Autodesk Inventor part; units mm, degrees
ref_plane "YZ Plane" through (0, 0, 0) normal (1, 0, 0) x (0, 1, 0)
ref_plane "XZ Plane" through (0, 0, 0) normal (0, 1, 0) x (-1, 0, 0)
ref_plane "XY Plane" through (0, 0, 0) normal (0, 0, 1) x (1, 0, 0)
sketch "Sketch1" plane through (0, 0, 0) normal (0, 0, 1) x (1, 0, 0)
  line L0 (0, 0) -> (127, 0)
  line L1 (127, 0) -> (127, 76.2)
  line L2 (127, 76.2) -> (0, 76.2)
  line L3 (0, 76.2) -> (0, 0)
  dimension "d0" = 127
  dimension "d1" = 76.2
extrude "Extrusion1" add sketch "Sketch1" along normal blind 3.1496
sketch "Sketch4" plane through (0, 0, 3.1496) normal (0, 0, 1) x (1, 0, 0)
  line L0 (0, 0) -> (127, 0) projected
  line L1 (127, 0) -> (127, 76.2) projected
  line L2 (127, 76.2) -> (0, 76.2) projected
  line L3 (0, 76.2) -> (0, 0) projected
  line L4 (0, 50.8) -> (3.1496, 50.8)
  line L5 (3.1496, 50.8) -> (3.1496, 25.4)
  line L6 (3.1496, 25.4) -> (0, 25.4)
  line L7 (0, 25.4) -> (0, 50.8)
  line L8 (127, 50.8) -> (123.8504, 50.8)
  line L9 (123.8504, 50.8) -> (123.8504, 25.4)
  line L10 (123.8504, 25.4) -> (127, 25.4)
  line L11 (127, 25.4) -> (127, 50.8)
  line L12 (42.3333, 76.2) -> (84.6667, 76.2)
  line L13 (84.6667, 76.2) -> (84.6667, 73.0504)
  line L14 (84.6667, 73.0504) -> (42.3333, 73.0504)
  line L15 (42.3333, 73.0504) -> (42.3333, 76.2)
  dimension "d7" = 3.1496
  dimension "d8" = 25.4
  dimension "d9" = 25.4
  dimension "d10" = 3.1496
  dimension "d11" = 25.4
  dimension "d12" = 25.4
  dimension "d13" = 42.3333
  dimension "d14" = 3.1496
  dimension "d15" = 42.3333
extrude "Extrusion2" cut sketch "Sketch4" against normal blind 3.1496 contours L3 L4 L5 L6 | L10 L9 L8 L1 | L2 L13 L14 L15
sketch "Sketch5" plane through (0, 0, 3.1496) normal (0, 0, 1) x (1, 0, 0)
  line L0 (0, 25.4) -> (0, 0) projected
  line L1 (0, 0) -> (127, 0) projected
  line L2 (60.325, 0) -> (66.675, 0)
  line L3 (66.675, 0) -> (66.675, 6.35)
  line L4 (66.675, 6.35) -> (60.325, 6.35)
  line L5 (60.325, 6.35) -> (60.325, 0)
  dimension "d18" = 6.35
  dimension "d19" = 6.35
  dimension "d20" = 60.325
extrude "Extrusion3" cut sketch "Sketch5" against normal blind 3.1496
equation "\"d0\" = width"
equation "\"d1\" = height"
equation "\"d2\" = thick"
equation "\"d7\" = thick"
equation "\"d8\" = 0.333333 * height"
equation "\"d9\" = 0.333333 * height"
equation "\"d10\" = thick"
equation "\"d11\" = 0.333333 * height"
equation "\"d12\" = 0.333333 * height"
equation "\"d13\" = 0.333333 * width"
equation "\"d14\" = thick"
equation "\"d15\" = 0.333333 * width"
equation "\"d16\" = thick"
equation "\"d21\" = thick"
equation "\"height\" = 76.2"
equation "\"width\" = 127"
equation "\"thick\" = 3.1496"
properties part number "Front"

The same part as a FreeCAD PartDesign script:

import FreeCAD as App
import Part
import Sketcher
from FreeCAD import Vector
Q = App.Units.Quantity

doc = App.newDocument("Part")
body = doc.addObject("PartDesign::Body", "Body")

# Sketch on XY plane
sketch1 = doc.addObject("Sketcher::SketchObject", "Sketch")
body.addObject(sketch1)
sketch1.AttachmentSupport = (doc.XY_Plane, [""])
sketch1.MapMode = "FlatFace"
sketch1.addGeometry([
    Part.LineSegment(Vector(0, 76, 0), Vector(0, 0, 0)),
    Part.LineSegment(Vector(0, 0, 0), Vector(127, 0, 0)),
    Part.LineSegment(Vector(127, 0, 0), Vector(127, 76, 0)),
    Part.LineSegment(Vector(127, 76, 0), Vector(0, 76, 0)),
], False)
sketch1.addConstraint([
    Sketcher.Constraint("Coincident", 0, 2, 1, 1),
    Sketcher.Constraint("Coincident", 1, 2, 2, 1),
    Sketcher.Constraint("Coincident", 2, 2, 3, 1),
    Sketcher.Constraint("Coincident", 3, 2, 0, 1),
    Sketcher.Constraint("Vertical", 0),
    Sketcher.Constraint("Horizontal", 1),
    Sketcher.Constraint("Vertical", 2),
    Sketcher.Constraint("Horizontal", 3),
    Sketcher.Constraint("Coincident", 0, 2, -1, 1),
    Sketcher.Constraint("DistanceX", 1, 1, 1, 2, Q("5 in")),
    Sketcher.Constraint("DistanceY", 0, 2, 0, 1, Q("3 in")),
])
pad1 = doc.addObject("PartDesign::Pad", "Pad")
body.addObject(pad1)
pad1.Profile = sketch1
pad1.Length = Q("0.124 in")

# Sketch on XY plane
sketch2 = doc.addObject("Sketcher::SketchObject", "Sketch001")
body.addObject(sketch2)
sketch2.AttachmentSupport = (doc.XY_Plane, [""])
sketch2.MapMode = "FlatFace"
sketch2.AttachmentOffset = App.Placement(Vector(0, 0, 0.124 * 25.4), App.Rotation())
sketch2.addGeometry([
    Part.LineSegment(Vector(0, 50.8, 0), Vector(0, 25.4, 0)),  # 0
    Part.LineSegment(Vector(0, 25.4, 0), Vector(3.1, 25.4, 0)),  # 1
    Part.LineSegment(Vector(3.1, 25.4, 0), Vector(3.1, 50.8, 0)),  # 2
    Part.LineSegment(Vector(3.1, 50.8, 0), Vector(0, 50.8, 0)),  # 3
    Part.LineSegment(Vector(123.9, 25.4, 0), Vector(127, 25.4, 0)),  # 4
    Part.LineSegment(Vector(127, 25.4, 0), Vector(127, 50.8, 0)),  # 5
    Part.LineSegment(Vector(127, 50.8, 0), Vector(123.9, 50.8, 0)),  # 6
    Part.LineSegment(Vector(123.9, 50.8, 0), Vector(123.9, 25.4, 0)),  # 7
    Part.LineSegment(Vector(84.7, 76.2, 0), Vector(42.3, 76.2, 0)),  # 8
    Part.LineSegment(Vector(42.3, 76.2, 0), Vector(42.3, 73.1, 0)),  # 9
    Part.LineSegment(Vector(42.3, 73.1, 0), Vector(84.7, 73.1, 0)),  # 10
    Part.LineSegment(Vector(84.7, 73.1, 0), Vector(84.7, 76.2, 0)),  # 11
], False)
sketch2.addConstraint([
    Sketcher.Constraint("Coincident", 0, 2, 1, 1),
    Sketcher.Constraint("Coincident", 1, 2, 2, 1),
    Sketcher.Constraint("Coincident", 2, 2, 3, 1),
    Sketcher.Constraint("Coincident", 3, 2, 0, 1),
    Sketcher.Constraint("Coincident", 4, 2, 5, 1),
    Sketcher.Constraint("Coincident", 5, 2, 6, 1),
    Sketcher.Constraint("Coincident", 6, 2, 7, 1),
    Sketcher.Constraint("Coincident", 7, 2, 4, 1),
    Sketcher.Constraint("Coincident", 8, 2, 9, 1),
    Sketcher.Constraint("Coincident", 9, 2, 10, 1),
    Sketcher.Constraint("Coincident", 10, 2, 11, 1),
    Sketcher.Constraint("Coincident", 11, 2, 8, 1),
    Sketcher.Constraint("Vertical", 0),
    Sketcher.Constraint("Horizontal", 1),
    Sketcher.Constraint("Vertical", 2),
    Sketcher.Constraint("Horizontal", 3),
    Sketcher.Constraint("Horizontal", 4),
    Sketcher.Constraint("Vertical", 5),
    Sketcher.Constraint("Horizontal", 6),
    Sketcher.Constraint("Vertical", 7),
    Sketcher.Constraint("Horizontal", 8),
    Sketcher.Constraint("Vertical", 9),
    Sketcher.Constraint("Horizontal", 10),
    Sketcher.Constraint("Vertical", 11),
    Sketcher.Constraint("PointOnObject", 0, 2, -2),
    Sketcher.Constraint("Horizontal", 1, 2, 4, 2),
    Sketcher.Constraint("Horizontal", 3, 2, 5, 2),
    Sketcher.Constraint("Equal", 3, 4),
    Sketcher.Constraint("Equal", 6, 9),
    Sketcher.Constraint("DistanceY", 0, 2, 0, 1, Q("1 in")),
    Sketcher.Constraint("DistanceY", -1, 1, 0, 2, Q("1 in")),
    Sketcher.Constraint("DistanceY", 2, 2, 8, 2, Q("1 in")),
    Sketcher.Constraint("DistanceX", 1, 1, 1, 2, Q("0.124 in")),
    Sketcher.Constraint("DistanceX", -1, 1, 4, 2, Q("5 in")),
    Sketcher.Constraint("DistanceX", 8, 2, 8, 1, Q("42.3334 mm")),
    Sketcher.Constraint("DistanceX", -1, 1, 8, 2, Q("42.3333 mm")),
])
pocket1 = doc.addObject("PartDesign::Pocket", "Pocket")
body.addObject(pocket1)
pocket1.Profile = sketch2
pocket1.Length = Q("0.124 in")

# Sketch on XY plane
sketch3 = doc.addObject("Sketcher::SketchObject", "Sketch002")
body.addObject(sketch3)
sketch3.AttachmentSupport = (doc.XY_Plane, [""])
sketch3.MapMode = "FlatFace"
sketch3.AttachmentOffset = App.Placement(Vector(0, 0, 0.124 * 25.4), App.Rotation())
sketch3.addGeometry([
    Part.LineSegment(Vector(60, 6, 0), Vector(60, 0, 0)),
    Part.LineSegment(Vector(60, 0, 0), Vector(67, 0, 0)),
    Part.LineSegment(Vector(67, 0, 0), Vector(67, 6, 0)),
    Part.LineSegment(Vector(67, 6, 0), Vector(60, 6, 0)),
], False)
sketch3.addConstraint([
    Sketcher.Constraint("Coincident", 0, 2, 1, 1),
    Sketcher.Constraint("Coincident", 1, 2, 2, 1),
    Sketcher.Constraint("Coincident", 2, 2, 3, 1),
    Sketcher.Constraint("Coincident", 3, 2, 0, 1),
    Sketcher.Constraint("Vertical", 0),
    Sketcher.Constraint("Horizontal", 1),
    Sketcher.Constraint("Vertical", 2),
    Sketcher.Constraint("Horizontal", 3),
    Sketcher.Constraint("PointOnObject", 0, 2, -1),
    Sketcher.Constraint("Equal", 3, 0),
    Sketcher.Constraint("DistanceX", 1, 1, 1, 2, Q("0.25 in")),
    Sketcher.Constraint("DistanceX", -1, 1, 0, 2, Q("2.375 in")),
])
pocket2 = doc.addObject("PartDesign::Pocket", "Pocket001")
body.addObject(pocket2)
pocket2.Profile = sketch3
pocket2.Length = Q("0.124 in")

doc.recompute()
